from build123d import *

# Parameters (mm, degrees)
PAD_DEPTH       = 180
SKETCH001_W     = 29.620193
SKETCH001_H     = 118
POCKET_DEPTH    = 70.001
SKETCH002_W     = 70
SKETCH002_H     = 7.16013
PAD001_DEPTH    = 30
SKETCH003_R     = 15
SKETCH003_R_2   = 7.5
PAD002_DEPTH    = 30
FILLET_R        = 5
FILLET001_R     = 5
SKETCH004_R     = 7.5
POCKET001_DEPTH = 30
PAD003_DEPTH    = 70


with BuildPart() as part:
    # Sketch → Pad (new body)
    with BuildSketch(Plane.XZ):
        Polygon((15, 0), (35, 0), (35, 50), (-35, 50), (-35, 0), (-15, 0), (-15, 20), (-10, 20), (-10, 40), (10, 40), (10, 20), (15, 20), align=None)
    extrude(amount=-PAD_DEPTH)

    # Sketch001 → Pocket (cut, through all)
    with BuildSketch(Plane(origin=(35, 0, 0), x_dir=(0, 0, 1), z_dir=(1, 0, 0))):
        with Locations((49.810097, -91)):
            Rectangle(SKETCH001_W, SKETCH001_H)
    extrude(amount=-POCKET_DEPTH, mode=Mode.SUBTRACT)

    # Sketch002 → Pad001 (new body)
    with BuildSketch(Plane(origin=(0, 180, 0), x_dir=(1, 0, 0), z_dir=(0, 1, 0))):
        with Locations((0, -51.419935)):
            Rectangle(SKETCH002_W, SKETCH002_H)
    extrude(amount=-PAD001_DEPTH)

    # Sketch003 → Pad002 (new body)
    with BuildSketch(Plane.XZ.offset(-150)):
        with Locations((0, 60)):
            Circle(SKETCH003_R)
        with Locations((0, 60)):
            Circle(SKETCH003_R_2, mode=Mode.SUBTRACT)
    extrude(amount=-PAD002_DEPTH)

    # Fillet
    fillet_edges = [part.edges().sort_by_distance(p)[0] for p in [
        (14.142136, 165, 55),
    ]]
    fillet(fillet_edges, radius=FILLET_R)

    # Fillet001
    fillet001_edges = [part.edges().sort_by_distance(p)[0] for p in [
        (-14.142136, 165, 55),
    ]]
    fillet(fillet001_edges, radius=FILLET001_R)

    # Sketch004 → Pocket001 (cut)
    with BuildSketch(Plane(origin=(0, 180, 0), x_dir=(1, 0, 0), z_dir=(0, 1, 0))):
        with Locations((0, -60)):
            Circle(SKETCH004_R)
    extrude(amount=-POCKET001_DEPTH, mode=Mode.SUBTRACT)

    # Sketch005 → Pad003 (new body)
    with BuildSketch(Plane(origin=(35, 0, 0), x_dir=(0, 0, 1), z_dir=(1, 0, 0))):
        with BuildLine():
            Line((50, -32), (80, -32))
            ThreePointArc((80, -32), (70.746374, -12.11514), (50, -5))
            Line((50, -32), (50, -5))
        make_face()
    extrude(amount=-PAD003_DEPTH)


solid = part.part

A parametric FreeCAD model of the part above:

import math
import FreeCAD as App
import Part
import Sketcher

V = App.Vector
Q = App.Units.Quantity


def edges_at(feature, points):
    """Names of the edges that pass closest to the given points."""
    edges = feature.Shape.Edges
    near = lambda p: min(range(len(edges)), key=lambda i: edges[i].distToShape(Part.Vertex(*p))[0])
    return sorted({f"Edge{near(p) + 1}" for p in points})


def add_polygon(sketch, points):
    """Adds a closed chain of lines whose ends are joined by coincident constraints."""
    first, n = sketch.GeometryCount, len(points)
    for a, b in zip(points, points[1:] + points[:1]):
        sketch.addGeometry(Part.LineSegment(App.Vector(*a, 0), App.Vector(*b, 0)), False)
    for i in range(n):
        sketch.addConstraint(Sketcher.Constraint("Coincident", first + i, 2, first + (i + 1) % n, 1))

doc = App.newDocument("Part")
body = doc.addObject("PartDesign::Body", "Body")

sketch1 = body.newObject("Sketcher::SketchObject", "Sketch")
sketch1.AttachmentSupport = (doc.getObject("XZ_Plane"), [""])
sketch1.MapMode = "FlatFace"
add_polygon(sketch1, [(15, 0), (35, 0), (35, 50), (-35, 50), (-35, 0), (-15, 0), (-15, 20), (-10, 20), (-10, 40), (10, 40), (10, 20), (15, 20)])
sketch1.addConstraint([
    Sketcher.Constraint("Horizontal", 0),
    Sketcher.Constraint("Vertical", 1),
    Sketcher.Constraint("Horizontal", 2),
    Sketcher.Constraint("Vertical", 3),
    Sketcher.Constraint("Horizontal", 4),
    Sketcher.Constraint("Vertical", 5),
    Sketcher.Constraint("Horizontal", 6),
    Sketcher.Constraint("Vertical", 7),
    Sketcher.Constraint("Horizontal", 8),
    Sketcher.Constraint("Vertical", 9),
    Sketcher.Constraint("Horizontal", 10),
    Sketcher.Constraint("Vertical", 11),
    Sketcher.Constraint("Symmetric", 0, 2, 3, 2, -1, 1),
    Sketcher.Constraint("Symmetric", 6, 2, 9, 2, -2),
    Sketcher.Constraint("Symmetric", 4, 2, 11, 2, -2),
    Sketcher.Constraint("Equal", 4, 8),
    Sketcher.Constraint("Equal", 8, 5),
    Sketcher.Constraint("Equal", 5, 7),
    Sketcher.Constraint("DistanceX", 0, 1, 0, 2, Q("20 mm")),
    Sketcher.Constraint("DistanceX", 2, 2, 2, 1, Q("70 mm")),
    Sketcher.Constraint("DistanceY", 1, 1, 1, 2, Q("50 mm")),
])
pad1 = body.newObject("PartDesign::Pad", "Pad")
pad1.Profile = sketch1
pad1.Length = 180
pad1.Reversed = True

sketch2 = body.newObject("Sketcher::SketchObject", "Sketch001")
sketch2.AttachmentSupport = (doc.getObject("YZ_Plane"), [""])
sketch2.MapMode = "FlatFace"
sketch2.AttachmentOffset = App.Placement(V(0, 0, 35), App.Rotation())
add_polygon(sketch2, [(32, 35), (150, 35), (150, 65), (32, 65)])
sketch2.addConstraint([
    Sketcher.Constraint("Horizontal", 0),
    Sketcher.Constraint("Vertical", 1),
    Sketcher.Constraint("Horizontal", 2),
    Sketcher.Constraint("Vertical", 3),
    Sketcher.Constraint("DistanceX", 0, 1, 0, 2, Q("118 mm")),
    Sketcher.Constraint("DistanceX", -1, 1, 0, 2, Q("150 mm")),
    Sketcher.Constraint("DistanceY", -1, 1, 0, 2, Q("35 mm")),
    Sketcher.Constraint("DistanceY", 1, 1, 1, 2, Q("29.620193 mm")),
])
pocket1 = body.newObject("PartDesign::Pocket", "Pocket")
pocket1.Profile = sketch2
pocket1.Type = "ThroughAll"

sketch3 = body.newObject("Sketcher::SketchObject", "Sketch002")
sketch3.AttachmentSupport = (doc.getObject("XZ_Plane"), [""])
sketch3.MapMode = "FlatFace"
sketch3.AttachmentOffset = App.Placement(V(0, 0, -180), App.Rotation())
add_polygon(sketch3, [(-35, 48), (-35, 55), (35, 55), (35, 48)])
sketch3.addConstraint([
    Sketcher.Constraint("Vertical", 0),
    Sketcher.Constraint("Horizontal", 1),
    Sketcher.Constraint("Vertical", 2),
    Sketcher.Constraint("Horizontal", 3),
    Sketcher.Constraint("DistanceX", 1, 1, 1, 2, Q("70 mm")),
    Sketcher.Constraint("DistanceX", 0, 2, -1, 1, Q("35 mm")),
    Sketcher.Constraint("DistanceY", -1, 1, 0, 2, Q("55 mm")),
    Sketcher.Constraint("DistanceY", 0, 1, 0, 2, Q("7.16013 mm")),
])
pad2 = body.newObject("PartDesign::Pad", "Pad001")
pad2.Profile = sketch3
pad2.Length = 30

sketch4 = body.newObject("Sketcher::SketchObject", "Sketch003")
sketch4.AttachmentSupport = (doc.getObject("XZ_Plane"), [""])
sketch4.MapMode = "FlatFace"
sketch4.AttachmentOffset = App.Placement(V(0, 0, -150), App.Rotation())
sketch4.addGeometry([
    Part.Circle(V(0, 60, 0), V(0, 0, 1), 15),
    Part.Circle(V(0, 60, 0), V(0, 0, 1), 8),
], False)
sketch4.addConstraint([
    Sketcher.Constraint("Coincident", 1, 3, 0, 3),
    Sketcher.Constraint("PointOnObject", 0, 3, -2),
    Sketcher.Constraint("Diameter", 0, Q("30 mm")),
    Sketcher.Constraint("Diameter", 1, Q("15 mm")),
    Sketcher.Constraint("DistanceY", -1, 1, 0, 3, Q("60 mm")),
])
pad3 = body.newObject("PartDesign::Pad", "Pad002")
pad3.Profile = sketch4
pad3.Length = 30
pad3.Reversed = True
doc.recompute()

fillet = body.newObject("PartDesign::Fillet", "Fillet")
fillet.Base = (pad3, edges_at(pad3, [(14.142, 165, 55)]))
fillet.Radius = 5
doc.recompute()

fillet2 = body.newObject("PartDesign::Fillet", "Fillet001")
fillet2.Base = (fillet, edges_at(fillet, [(-14.142, 165, 55)]))
fillet2.Radius = 5

sketch5 = body.newObject("Sketcher::SketchObject", "Sketch004")
sketch5.AttachmentSupport = (doc.getObject("XZ_Plane"), [""])
sketch5.MapMode = "FlatFace"
sketch5.AttachmentOffset = App.Placement(V(0, 0, -180), App.Rotation())
sketch5.addGeometry(Part.Circle(V(0, 60, 0), V(0, 0, 1), 8), False)
sketch5.addConstraint([
    Sketcher.Constraint("PointOnObject", 0, 3, -2),
    Sketcher.Constraint("Diameter", 0, Q("15 mm")),
    Sketcher.Constraint("DistanceY", -1, 1, 0, 3, Q("60 mm")),
])
pocket2 = body.newObject("PartDesign::Pocket", "Pocket001")
pocket2.Profile = sketch5
pocket2.Length = 30
pocket2.Reversed = True

sketch6 = body.newObject("Sketcher::SketchObject", "Sketch005")
sketch6.AttachmentSupport = (doc.getObject("YZ_Plane"), [""])
sketch6.MapMode = "FlatFace"
sketch6.AttachmentOffset = App.Placement(V(0, 0, 35), App.Rotation())
sketch6.addGeometry([
    Part.LineSegment(V(32, 50, 0), V(32, 80, 0)),
    Part.ArcOfCircle(Part.Circle(V(33, 52, 0), V(0, 0, 1), 28), math.radians(92), math.radians(184)),
    Part.LineSegment(V(5, 50, 0), V(32, 50, 0)),
], False)
sketch6.addConstraint([
    Sketcher.Constraint("Coincident", 0, 2, 1, 1),
    Sketcher.Constraint("Coincident", 1, 2, 2, 1),
    Sketcher.Constraint("Coincident", 2, 2, 0, 1),
    Sketcher.Constraint("Vertical", 0),
    Sketcher.Constraint("Horizontal", 2),
    Sketcher.Constraint("Radius", 1, Q("28.000001 mm")),
    Sketcher.Constraint("DistanceX", 2, 1, 2, 2, Q("27 mm")),
    Sketcher.Constraint("DistanceY", 0, 1, 0, 2, Q("30 mm")),
    Sketcher.Constraint("DistanceX", -1, 1, 0, 2, Q("32 mm")),
    Sketcher.Constraint("DistanceY", -1, 1, 0, 2, Q("80 mm")),
])
pad4 = body.newObject("PartDesign::Pad", "Pad003")
pad4.Profile = sketch6
pad4.Length = 70
pad4.Reversed = True

doc.recompute()
